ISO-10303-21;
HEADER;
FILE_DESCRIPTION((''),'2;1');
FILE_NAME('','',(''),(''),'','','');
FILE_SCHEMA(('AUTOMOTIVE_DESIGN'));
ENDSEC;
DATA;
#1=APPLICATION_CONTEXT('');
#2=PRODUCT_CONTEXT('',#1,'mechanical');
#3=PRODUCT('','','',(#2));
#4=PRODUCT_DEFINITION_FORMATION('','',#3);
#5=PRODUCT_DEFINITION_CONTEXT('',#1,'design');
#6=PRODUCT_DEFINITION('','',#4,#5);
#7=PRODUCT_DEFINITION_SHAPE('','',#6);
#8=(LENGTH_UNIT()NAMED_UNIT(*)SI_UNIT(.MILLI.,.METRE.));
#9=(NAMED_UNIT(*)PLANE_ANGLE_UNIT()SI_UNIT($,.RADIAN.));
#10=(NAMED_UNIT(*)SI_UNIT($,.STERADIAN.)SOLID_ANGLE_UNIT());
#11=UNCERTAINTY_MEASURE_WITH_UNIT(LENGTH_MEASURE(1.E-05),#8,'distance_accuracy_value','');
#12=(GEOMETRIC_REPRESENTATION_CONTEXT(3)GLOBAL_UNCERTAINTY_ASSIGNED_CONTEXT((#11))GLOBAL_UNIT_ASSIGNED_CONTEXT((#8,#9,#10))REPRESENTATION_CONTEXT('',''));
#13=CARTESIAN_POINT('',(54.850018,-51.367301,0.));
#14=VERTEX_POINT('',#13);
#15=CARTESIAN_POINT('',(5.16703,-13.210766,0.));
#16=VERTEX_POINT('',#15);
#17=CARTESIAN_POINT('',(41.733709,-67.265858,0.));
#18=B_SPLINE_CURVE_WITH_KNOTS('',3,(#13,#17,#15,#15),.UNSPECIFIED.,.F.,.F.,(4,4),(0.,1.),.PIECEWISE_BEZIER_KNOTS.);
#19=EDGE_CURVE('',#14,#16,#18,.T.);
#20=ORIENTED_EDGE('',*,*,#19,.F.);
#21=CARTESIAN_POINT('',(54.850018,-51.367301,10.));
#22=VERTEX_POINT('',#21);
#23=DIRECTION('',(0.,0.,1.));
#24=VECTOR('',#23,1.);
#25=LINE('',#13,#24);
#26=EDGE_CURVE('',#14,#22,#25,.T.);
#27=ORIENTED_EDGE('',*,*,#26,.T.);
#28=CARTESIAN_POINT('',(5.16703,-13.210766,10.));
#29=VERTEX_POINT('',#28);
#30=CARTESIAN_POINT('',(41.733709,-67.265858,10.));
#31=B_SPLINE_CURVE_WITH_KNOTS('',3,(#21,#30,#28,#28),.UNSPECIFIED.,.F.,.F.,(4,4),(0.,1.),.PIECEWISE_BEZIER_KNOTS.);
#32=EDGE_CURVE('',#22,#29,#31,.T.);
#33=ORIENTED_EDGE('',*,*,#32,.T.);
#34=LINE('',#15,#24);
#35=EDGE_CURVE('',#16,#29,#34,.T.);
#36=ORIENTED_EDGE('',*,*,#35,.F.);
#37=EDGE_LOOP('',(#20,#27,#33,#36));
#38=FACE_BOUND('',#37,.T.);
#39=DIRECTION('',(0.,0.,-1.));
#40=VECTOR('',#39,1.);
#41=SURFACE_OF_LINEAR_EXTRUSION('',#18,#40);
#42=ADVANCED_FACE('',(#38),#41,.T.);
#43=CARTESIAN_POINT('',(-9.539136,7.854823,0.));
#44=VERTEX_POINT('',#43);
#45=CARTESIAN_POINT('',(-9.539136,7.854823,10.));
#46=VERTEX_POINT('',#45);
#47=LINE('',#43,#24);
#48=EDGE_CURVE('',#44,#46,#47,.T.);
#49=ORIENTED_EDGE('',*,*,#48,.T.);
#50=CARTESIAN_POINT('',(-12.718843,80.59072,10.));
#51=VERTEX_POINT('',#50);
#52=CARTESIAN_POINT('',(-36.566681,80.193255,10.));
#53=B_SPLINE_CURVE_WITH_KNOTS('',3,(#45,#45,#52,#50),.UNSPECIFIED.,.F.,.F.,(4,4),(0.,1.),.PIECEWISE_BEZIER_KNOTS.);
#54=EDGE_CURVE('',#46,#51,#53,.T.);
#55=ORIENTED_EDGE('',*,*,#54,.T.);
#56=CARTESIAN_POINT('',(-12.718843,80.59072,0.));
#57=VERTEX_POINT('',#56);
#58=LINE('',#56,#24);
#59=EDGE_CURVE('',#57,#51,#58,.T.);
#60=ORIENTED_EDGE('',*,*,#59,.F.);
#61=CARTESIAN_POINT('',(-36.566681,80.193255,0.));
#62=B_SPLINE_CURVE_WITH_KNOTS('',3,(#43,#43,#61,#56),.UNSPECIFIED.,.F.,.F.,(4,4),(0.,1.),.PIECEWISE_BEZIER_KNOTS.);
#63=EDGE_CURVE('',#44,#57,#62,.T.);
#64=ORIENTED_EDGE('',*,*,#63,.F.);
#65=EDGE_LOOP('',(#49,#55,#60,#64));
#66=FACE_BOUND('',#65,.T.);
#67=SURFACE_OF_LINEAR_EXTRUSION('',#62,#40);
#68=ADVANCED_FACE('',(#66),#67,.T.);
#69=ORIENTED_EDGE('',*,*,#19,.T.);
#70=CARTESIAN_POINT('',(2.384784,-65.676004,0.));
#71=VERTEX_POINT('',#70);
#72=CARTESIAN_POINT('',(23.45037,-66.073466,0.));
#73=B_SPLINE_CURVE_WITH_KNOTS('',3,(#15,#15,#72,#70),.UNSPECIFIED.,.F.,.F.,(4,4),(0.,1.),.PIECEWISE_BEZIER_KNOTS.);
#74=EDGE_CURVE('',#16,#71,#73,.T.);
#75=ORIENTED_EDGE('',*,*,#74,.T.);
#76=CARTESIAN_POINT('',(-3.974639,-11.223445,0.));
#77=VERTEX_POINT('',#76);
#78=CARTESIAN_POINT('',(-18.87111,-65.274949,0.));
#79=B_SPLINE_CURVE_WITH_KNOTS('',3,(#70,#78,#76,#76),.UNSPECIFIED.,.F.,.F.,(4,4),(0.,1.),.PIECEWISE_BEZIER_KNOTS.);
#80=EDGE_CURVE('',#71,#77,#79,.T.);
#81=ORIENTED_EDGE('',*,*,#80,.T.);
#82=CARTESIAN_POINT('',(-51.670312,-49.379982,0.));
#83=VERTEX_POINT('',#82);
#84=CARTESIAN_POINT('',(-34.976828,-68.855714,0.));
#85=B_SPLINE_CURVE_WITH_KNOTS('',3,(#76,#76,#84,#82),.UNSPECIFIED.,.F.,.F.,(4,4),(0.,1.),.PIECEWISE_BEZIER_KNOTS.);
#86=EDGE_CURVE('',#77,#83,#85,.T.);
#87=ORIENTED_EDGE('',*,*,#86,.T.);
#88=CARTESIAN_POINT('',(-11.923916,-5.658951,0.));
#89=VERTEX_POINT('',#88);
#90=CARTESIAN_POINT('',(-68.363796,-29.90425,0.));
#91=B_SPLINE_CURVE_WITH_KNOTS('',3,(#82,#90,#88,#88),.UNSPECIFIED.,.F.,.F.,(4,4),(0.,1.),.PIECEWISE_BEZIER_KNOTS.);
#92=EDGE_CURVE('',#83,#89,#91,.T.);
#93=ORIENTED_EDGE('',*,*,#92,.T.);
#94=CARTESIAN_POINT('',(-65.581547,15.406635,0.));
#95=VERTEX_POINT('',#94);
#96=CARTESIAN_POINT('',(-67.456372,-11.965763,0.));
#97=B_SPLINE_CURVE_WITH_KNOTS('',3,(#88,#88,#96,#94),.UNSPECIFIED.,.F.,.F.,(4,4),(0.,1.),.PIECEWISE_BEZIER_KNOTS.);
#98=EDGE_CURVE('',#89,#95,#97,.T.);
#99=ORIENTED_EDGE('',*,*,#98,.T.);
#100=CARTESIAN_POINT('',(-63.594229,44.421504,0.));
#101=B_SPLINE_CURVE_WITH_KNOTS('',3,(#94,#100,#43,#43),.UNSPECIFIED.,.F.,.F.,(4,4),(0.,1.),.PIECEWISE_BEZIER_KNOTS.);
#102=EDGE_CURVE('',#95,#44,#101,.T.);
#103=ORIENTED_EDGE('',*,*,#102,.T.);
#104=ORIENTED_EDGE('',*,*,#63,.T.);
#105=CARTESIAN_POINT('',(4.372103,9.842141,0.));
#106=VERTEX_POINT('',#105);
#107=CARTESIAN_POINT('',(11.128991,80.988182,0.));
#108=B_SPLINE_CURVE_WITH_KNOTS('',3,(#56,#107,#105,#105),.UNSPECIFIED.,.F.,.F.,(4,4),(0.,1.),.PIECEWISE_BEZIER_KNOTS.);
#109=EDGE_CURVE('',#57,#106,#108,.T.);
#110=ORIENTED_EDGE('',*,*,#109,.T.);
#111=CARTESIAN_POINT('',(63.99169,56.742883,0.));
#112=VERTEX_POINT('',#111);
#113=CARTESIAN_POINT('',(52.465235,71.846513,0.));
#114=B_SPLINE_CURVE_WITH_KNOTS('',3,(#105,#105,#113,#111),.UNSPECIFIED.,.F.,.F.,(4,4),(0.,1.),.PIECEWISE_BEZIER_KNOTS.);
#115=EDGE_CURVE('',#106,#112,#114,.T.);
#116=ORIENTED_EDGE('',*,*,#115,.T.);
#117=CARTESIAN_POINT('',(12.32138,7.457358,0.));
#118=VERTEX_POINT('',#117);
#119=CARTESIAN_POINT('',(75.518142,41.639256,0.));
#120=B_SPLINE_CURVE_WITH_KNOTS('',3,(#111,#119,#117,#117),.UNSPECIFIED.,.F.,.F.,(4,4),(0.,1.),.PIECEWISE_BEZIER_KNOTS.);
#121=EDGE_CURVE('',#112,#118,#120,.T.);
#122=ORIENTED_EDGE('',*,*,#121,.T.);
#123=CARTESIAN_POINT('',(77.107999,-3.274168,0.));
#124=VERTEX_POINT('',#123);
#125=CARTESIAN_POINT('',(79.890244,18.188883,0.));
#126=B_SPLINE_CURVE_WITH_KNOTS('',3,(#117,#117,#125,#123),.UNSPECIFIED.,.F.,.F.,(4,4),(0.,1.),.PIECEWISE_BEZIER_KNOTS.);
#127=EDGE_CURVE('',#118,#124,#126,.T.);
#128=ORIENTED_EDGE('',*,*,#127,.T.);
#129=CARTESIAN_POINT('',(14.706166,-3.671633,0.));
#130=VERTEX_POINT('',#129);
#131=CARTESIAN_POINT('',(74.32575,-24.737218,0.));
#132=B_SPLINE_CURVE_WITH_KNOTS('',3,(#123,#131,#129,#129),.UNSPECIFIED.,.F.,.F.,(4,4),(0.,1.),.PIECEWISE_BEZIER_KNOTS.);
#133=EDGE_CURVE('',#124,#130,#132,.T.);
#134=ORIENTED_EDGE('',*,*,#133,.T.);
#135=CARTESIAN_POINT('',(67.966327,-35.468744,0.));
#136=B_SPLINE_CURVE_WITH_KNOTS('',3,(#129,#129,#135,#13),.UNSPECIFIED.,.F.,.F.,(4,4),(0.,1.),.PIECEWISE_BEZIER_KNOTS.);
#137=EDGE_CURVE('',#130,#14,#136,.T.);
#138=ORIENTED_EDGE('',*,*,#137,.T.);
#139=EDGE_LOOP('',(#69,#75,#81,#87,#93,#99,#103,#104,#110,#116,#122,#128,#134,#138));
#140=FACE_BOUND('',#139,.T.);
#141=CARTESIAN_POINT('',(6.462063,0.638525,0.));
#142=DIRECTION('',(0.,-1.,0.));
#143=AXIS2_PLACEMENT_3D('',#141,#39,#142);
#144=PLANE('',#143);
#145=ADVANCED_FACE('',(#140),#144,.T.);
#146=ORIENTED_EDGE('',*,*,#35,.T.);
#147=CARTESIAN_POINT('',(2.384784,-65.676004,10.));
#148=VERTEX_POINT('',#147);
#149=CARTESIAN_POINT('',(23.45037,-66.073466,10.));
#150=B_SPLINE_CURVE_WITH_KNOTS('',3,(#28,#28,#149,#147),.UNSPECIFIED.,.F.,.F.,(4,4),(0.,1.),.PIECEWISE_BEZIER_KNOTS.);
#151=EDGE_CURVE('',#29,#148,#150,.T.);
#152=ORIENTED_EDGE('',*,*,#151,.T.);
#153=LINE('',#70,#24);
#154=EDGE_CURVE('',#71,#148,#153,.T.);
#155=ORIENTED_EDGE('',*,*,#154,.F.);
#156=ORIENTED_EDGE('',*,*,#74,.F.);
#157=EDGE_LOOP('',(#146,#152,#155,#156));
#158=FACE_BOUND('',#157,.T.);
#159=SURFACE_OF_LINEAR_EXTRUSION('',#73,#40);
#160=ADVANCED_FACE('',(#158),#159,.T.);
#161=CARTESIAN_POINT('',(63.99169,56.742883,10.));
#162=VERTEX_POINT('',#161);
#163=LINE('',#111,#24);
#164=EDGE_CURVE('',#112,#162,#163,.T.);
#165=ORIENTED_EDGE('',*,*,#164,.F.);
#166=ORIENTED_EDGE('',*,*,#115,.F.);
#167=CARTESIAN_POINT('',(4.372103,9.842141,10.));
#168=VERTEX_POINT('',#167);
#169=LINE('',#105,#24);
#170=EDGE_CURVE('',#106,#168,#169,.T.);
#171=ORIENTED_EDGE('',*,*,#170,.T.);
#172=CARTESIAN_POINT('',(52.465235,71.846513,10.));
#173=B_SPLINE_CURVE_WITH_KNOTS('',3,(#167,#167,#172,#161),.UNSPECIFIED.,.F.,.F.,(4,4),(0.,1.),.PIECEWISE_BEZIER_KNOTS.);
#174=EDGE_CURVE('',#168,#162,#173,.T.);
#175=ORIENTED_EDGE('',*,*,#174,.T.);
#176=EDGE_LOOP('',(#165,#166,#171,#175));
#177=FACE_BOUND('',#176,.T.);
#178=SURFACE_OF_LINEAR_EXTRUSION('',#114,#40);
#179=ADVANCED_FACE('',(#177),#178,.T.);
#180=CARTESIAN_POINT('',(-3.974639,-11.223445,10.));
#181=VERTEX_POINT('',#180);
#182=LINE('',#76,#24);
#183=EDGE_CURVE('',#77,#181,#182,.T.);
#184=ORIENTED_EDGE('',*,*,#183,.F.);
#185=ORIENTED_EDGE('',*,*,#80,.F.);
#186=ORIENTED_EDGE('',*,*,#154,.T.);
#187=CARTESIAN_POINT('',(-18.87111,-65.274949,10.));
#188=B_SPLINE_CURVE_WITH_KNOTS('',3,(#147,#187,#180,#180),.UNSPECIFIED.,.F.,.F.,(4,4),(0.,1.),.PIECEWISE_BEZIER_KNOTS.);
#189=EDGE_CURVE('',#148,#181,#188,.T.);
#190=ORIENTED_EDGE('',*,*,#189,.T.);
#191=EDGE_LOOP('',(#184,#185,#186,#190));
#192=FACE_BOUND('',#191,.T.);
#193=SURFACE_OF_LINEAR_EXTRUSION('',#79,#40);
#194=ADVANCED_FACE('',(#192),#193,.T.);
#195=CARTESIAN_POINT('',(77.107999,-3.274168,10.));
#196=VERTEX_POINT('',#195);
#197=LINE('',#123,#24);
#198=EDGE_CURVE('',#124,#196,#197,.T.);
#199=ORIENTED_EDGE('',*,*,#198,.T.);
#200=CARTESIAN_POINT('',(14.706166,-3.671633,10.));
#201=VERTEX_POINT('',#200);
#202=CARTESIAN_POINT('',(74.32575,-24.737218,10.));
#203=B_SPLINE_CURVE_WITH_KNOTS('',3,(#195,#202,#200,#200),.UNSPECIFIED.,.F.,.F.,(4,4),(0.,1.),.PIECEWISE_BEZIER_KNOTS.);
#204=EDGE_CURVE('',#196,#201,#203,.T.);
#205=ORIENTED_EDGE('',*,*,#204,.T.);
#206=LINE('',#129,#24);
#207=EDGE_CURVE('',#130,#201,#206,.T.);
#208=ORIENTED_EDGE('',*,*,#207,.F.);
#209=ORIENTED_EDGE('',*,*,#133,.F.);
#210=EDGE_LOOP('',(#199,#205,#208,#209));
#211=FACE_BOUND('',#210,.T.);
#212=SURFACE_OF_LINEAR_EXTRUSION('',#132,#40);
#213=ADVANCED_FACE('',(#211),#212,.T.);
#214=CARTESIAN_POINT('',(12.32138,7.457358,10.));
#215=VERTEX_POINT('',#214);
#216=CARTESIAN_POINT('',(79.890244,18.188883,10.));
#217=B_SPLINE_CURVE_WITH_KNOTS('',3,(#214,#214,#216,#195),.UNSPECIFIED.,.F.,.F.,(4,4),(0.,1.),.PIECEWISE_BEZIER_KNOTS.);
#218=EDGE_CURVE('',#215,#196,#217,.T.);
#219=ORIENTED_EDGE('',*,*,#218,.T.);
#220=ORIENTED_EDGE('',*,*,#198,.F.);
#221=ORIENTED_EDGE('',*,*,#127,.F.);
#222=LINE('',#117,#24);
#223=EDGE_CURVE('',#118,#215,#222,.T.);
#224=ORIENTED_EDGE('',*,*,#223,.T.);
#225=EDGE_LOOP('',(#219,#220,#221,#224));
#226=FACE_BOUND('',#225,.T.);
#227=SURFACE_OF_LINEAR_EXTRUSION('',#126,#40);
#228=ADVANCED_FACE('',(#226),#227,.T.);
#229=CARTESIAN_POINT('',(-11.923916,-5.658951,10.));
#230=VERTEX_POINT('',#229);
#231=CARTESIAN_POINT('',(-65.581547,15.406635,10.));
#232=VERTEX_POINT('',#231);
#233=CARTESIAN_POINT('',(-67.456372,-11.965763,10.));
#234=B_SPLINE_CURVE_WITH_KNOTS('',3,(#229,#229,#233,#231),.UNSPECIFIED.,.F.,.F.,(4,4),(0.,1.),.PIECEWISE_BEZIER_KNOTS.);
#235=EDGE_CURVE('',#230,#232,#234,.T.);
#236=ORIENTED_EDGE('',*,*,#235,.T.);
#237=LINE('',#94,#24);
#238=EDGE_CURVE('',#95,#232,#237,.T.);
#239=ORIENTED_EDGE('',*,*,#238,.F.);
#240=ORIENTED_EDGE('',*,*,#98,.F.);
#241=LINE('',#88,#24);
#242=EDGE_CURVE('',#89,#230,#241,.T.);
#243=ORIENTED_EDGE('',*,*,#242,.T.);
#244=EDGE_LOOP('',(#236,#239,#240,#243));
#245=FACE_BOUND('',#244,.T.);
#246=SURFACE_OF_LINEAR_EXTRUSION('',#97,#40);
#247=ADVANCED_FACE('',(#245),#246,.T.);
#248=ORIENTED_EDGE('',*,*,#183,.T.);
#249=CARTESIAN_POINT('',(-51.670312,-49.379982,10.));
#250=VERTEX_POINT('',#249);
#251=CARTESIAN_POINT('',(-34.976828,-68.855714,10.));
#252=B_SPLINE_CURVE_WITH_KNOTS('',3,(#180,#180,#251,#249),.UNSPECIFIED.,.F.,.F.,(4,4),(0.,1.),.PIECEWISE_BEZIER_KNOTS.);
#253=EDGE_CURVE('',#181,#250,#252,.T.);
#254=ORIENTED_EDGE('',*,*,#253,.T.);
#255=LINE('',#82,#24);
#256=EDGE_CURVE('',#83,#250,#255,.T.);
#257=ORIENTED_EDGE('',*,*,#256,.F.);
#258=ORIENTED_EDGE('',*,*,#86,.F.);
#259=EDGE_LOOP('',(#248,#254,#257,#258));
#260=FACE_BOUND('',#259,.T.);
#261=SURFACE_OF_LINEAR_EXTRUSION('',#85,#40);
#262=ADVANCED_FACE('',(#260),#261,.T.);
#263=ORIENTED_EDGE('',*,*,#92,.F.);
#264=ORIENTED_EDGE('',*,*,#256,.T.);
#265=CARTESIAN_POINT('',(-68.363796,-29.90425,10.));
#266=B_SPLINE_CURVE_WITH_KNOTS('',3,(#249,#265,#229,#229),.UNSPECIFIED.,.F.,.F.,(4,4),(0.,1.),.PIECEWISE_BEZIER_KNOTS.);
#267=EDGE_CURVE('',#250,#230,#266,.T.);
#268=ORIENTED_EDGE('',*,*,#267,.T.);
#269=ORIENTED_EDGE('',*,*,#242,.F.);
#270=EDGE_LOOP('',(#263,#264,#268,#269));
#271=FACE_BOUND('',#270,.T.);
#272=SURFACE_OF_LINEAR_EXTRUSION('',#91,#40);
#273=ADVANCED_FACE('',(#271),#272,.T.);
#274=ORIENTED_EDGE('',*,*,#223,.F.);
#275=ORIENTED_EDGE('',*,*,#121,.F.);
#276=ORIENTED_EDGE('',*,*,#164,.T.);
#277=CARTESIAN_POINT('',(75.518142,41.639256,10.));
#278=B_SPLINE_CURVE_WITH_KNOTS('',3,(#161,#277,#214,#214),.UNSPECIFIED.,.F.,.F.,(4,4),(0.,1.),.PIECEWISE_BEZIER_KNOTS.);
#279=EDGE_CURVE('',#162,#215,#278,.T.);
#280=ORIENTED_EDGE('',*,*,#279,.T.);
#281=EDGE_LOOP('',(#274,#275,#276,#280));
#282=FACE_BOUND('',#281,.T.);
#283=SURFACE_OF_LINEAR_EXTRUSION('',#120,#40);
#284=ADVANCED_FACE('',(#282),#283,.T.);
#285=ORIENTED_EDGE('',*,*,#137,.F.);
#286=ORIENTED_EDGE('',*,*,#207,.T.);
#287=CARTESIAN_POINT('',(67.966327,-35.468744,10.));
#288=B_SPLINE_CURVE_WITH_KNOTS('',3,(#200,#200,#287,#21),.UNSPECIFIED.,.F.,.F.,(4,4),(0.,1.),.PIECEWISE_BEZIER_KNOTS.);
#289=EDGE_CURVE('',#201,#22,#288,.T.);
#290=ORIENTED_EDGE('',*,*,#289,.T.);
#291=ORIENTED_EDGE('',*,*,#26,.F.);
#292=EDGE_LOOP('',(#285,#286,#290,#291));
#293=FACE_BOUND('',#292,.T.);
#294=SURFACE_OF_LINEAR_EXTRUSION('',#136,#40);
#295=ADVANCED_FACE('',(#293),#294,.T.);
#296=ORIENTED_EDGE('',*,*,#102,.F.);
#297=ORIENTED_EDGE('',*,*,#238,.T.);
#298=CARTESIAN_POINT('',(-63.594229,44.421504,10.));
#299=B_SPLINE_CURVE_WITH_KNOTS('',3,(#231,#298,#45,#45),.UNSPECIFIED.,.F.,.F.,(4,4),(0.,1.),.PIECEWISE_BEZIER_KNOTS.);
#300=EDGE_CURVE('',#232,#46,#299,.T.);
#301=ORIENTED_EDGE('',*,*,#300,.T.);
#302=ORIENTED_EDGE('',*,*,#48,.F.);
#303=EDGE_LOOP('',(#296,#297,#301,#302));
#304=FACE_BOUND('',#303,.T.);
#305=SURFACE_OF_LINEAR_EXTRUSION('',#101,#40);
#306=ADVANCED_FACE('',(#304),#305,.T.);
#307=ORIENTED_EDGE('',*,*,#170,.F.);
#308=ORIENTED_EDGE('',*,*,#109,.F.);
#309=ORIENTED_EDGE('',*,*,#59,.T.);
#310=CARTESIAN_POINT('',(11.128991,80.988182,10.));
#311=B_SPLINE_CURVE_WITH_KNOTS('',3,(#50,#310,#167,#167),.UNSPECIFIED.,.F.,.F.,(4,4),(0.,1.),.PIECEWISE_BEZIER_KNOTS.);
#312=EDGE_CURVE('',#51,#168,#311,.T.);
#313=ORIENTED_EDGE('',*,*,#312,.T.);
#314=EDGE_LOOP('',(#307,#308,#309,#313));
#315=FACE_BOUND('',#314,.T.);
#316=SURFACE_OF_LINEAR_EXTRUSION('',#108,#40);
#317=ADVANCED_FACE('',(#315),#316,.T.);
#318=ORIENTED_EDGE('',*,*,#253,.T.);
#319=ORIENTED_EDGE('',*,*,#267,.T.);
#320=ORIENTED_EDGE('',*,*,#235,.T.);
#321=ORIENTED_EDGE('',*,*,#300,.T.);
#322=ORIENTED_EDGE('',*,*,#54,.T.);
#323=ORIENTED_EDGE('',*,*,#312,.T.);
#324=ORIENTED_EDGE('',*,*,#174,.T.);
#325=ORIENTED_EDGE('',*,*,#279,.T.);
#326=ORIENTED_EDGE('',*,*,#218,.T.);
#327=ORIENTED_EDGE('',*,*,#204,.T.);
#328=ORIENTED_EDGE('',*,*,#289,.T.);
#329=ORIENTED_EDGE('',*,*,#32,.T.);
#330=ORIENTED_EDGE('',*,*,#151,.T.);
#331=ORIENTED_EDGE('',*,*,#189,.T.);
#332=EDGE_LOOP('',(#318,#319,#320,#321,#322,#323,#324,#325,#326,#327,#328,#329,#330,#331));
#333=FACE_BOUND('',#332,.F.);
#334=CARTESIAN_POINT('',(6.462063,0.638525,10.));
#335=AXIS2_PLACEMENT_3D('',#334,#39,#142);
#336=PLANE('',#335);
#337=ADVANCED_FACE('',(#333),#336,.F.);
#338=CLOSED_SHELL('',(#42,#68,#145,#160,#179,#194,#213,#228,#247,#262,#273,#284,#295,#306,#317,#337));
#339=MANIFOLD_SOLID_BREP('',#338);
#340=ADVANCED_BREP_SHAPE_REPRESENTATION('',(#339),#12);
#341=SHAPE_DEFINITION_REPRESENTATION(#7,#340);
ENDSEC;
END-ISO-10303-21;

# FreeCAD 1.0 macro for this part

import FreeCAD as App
import Part
import Sketcher

doc = App.newDocument("Part")
body = doc.addObject("PartDesign::Body", "Body")

# Sketch on XY plane
sketch1 = body.newObject("Sketcher::SketchObject", "Sketch")
sketch1.AttachmentSupport = (doc.getObject("XY_Plane"), [""])
sketch1.MapMode = "FlatFace"
sketch1.addGeometry([
    Part.BSplineCurve([App.Vector(-9.539136, 7.854823, 0), App.Vector(-9.539136, 7.854823, 0), App.Vector(-36.566681, 80.193255, 0), App.Vector(-12.718843, 80.59072, 0)], [4, 4], [0, 1], False, 3, [1, 1, 1, 1], False),  # 0
    Part.BSplineCurve([App.Vector(-12.718843, 80.59072, 0), App.Vector(11.128991, 80.988182, 0), App.Vector(4.372103, 9.842141, 0), App.Vector(4.372103, 9.842141, 0)], [4, 4], [0, 1], False, 3, [1, 1, 1, 1], False),  # 1
    Part.BSplineCurve([App.Vector(4.372103, 9.842141, 0), App.Vector(4.372103, 9.842141, 0), App.Vector(52.465235, 71.846513, 0), App.Vector(63.99169, 56.742883, 0)], [4, 4], [0, 1], False, 3, [1, 1, 1, 1], False),  # 2
    Part.BSplineCurve([App.Vector(63.99169, 56.742883, 0), App.Vector(75.518142, 41.639256, 0), App.Vector(12.32138, 7.457358, 0), App.Vector(12.32138, 7.457358, 0)], [4, 4], [0, 1], False, 3, [1, 1, 1, 1], False),  # 3
    Part.BSplineCurve([App.Vector(12.32138, 7.457358, 0), App.Vector(12.32138, 7.457358, 0), App.Vector(79.890244, 18.188883, 0), App.Vector(77.107999, -3.274168, 0)], [4, 4], [0, 1], False, 3, [1, 1, 1, 1], False),  # 4
    Part.BSplineCurve([App.Vector(77.107999, -3.274168, 0), App.Vector(74.32575, -24.737218, 0), App.Vector(14.706166, -3.671633, 0), App.Vector(14.706166, -3.671633, 0)], [4, 4], [0, 1], False, 3, [1, 1, 1, 1], False),  # 5
    Part.BSplineCurve([App.Vector(14.706166, -3.671633, 0), App.Vector(14.706166, -3.671633, 0), App.Vector(67.966327, -35.468744, 0), App.Vector(54.850018, -51.367301, 0)], [4, 4], [0, 1], False, 3, [1, 1, 1, 1], False),  # 6
    Part.BSplineCurve([App.Vector(54.850018, -51.367301, 0), App.Vector(41.733709, -67.265858, 0), App.Vector(5.16703, -13.210766, 0), App.Vector(5.16703, -13.210766, 0)], [4, 4], [0, 1], False, 3, [1, 1, 1, 1], False),  # 7
    Part.BSplineCurve([App.Vector(5.16703, -13.210766, 0), App.Vector(5.16703, -13.210766, 0), App.Vector(23.45037, -66.073466, 0), App.Vector(2.384784, -65.676004, 0)], [4, 4], [0, 1], False, 3, [1, 1, 1, 1], False),  # 8
    Part.BSplineCurve([App.Vector(2.384784, -65.676004, 0), App.Vector(-18.87111, -65.274949, 0), App.Vector(-3.974639, -11.223445, 0), App.Vector(-3.974639, -11.223445, 0)], [4, 4], [0, 1], False, 3, [1, 1, 1, 1], False),  # 9
    Part.BSplineCurve([App.Vector(-3.974639, -11.223445, 0), App.Vector(-3.974639, -11.223445, 0), App.Vector(-34.976828, -68.855714, 0), App.Vector(-51.670312, -49.379982, 0)], [4, 4], [0, 1], False, 3, [1, 1, 1, 1], False),  # 10
    Part.BSplineCurve([App.Vector(-51.670312, -49.379982, 0), App.Vector(-68.363796, -29.90425, 0), App.Vector(-11.923916, -5.658951, 0), App.Vector(-11.923916, -5.658951, 0)], [4, 4], [0, 1], False, 3, [1, 1, 1, 1], False),  # 11
    Part.BSplineCurve([App.Vector(-11.923916, -5.658951, 0), App.Vector(-11.923916, -5.658951, 0), App.Vector(-67.456372, -11.965763, 0), App.Vector(-65.581547, 15.406635, 0)], [4, 4], [0, 1], False, 3, [1, 1, 1, 1], False),  # 12
    Part.BSplineCurve([App.Vector(-65.581547, 15.406635, 0), App.Vector(-63.594229, 44.421504, 0), App.Vector(-9.539136, 7.854823, 0), App.Vector(-9.539136, 7.854823, 0)], [4, 4], [0, 1], False, 3, [1, 1, 1, 1], False),  # 13
], False)
sketch1.addConstraint([
    Sketcher.Constraint("Block", 0),
    Sketcher.Constraint("Block", 1),
    Sketcher.Constraint("Block", 2),
    Sketcher.Constraint("Block", 3),
    Sketcher.Constraint("Block", 4),
    Sketcher.Constraint("Block", 5),
    Sketcher.Constraint("Block", 6),
    Sketcher.Constraint("Block", 7),
    Sketcher.Constraint("Block", 8),
    Sketcher.Constraint("Block", 9),
    Sketcher.Constraint("Block", 10),
    Sketcher.Constraint("Block", 11),
    Sketcher.Constraint("Block", 12),
    Sketcher.Constraint("Block", 13),
])
pad1 = body.newObject("PartDesign::Pad", "Pad")
pad1.Profile = sketch1
pad1.Length = 10

doc.recompute()
